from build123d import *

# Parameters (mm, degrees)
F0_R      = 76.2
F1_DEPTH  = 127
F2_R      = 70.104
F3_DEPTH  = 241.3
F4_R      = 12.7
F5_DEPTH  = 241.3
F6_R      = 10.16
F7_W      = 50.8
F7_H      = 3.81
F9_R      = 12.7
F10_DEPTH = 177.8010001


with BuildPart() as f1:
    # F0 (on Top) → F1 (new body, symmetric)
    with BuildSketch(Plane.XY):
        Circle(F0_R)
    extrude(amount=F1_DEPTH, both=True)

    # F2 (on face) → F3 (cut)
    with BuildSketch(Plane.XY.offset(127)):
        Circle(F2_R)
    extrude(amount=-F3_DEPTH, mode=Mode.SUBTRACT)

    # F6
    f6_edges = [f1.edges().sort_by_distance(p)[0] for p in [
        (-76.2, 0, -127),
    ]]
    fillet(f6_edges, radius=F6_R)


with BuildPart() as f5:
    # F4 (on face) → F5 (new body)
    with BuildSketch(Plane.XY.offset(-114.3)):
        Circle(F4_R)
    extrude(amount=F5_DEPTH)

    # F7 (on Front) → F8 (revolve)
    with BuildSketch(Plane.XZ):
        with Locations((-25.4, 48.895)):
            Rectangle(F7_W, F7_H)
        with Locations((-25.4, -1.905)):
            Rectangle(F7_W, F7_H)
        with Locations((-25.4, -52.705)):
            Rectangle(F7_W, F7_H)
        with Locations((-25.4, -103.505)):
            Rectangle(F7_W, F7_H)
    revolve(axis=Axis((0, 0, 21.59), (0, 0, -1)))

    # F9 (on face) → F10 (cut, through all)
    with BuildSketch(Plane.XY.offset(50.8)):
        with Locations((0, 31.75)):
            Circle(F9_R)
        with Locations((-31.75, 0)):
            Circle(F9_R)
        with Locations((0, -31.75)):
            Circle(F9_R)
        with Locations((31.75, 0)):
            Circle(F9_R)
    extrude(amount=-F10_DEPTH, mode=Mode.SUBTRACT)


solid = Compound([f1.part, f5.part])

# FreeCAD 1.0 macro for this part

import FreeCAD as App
import Part
import Sketcher

V = App.Vector
Q = App.Units.Quantity


def edges_at(feature, points):
    """Names of the edges that pass closest to the given points."""
    edges = feature.Shape.Edges
    near = lambda p: min(range(len(edges)), key=lambda i: edges[i].distToShape(Part.Vertex(*p))[0])
    return sorted({f"Edge{near(p) + 1}" for p in points})


def add_polygon(sketch, points):
    """Adds a closed chain of lines whose ends are joined by coincident constraints."""
    first, n = sketch.GeometryCount, len(points)
    for a, b in zip(points, points[1:] + points[:1]):
        sketch.addGeometry(Part.LineSegment(App.Vector(*a, 0), App.Vector(*b, 0)), False)
    for i in range(n):
        sketch.addConstraint(Sketcher.Constraint("Coincident", first + i, 2, first + (i + 1) % n, 1))

doc = App.newDocument("Part")
body = doc.addObject("PartDesign::Body", "Body")

# Sketch on XY plane
sketch1 = doc.addObject("Sketcher::SketchObject", "Sketch")
body.addObject(sketch1)
sketch1.AttachmentSupport = (doc.XY_Plane, [""])
sketch1.MapMode = "FlatFace"
sketch1.addGeometry(Part.Circle(V(0, 0, 0), V(0, 0, 1), 76), False)
sketch1.addConstraint([
    Sketcher.Constraint("Coincident", 0, 3, -1, 1),
    Sketcher.Constraint("Diameter", 0, Q("6 in")),
])
pad1 = doc.addObject("PartDesign::Pad", "Pad")
body.addObject(pad1)
pad1.Profile = sketch1
pad1.Length = Q("10 in")
pad1.Midplane = True

# Sketch on XY plane
sketch2 = doc.addObject("Sketcher::SketchObject", "Sketch001")
body.addObject(sketch2)
sketch2.AttachmentSupport = (doc.XY_Plane, [""])
sketch2.MapMode = "FlatFace"
sketch2.AttachmentOffset = App.Placement(V(0, 0, 5 * 25.4), App.Rotation())
sketch2.addGeometry(Part.Circle(V(0, 0, 0), V(0, 0, 1), 70), False)
sketch2.addConstraint([
    Sketcher.Constraint("Coincident", 0, 3, -1, 1),
    Sketcher.Constraint("Diameter", 0, Q("5.52 in")),
])
pocket1 = doc.addObject("PartDesign::Pocket", "Pocket")
body.addObject(pocket1)
pocket1.Profile = sketch2
pocket1.Length = Q("9.5 in")
doc.recompute()

fillet = doc.addObject("PartDesign::Fillet", "Fillet")
body.addObject(fillet)
fillet.Base = (pocket1, edges_at(pocket1, [(-76.2, 0, -127)]))
fillet.Radius = Q("0.4 in")
body2 = doc.addObject("PartDesign::Body", "Body001")

# Sketch on XY plane
sketch3 = doc.addObject("Sketcher::SketchObject", "Sketch002")
body2.addObject(sketch3)
sketch3.AttachmentSupport = (doc.getObject("XY_Plane001"), [""])
sketch3.MapMode = "FlatFace"
sketch3.AttachmentOffset = App.Placement(V(0, 0, -4.5 * 25.4), App.Rotation())
sketch3.addGeometry(Part.Circle(V(0, 0, 0), V(0, 0, 1), 13), False)
sketch3.addConstraint([
    Sketcher.Constraint("Coincident", 0, 3, -1, 1),
    Sketcher.Constraint("Diameter", 0, Q("1 in")),
])
pad2 = doc.addObject("PartDesign::Pad", "Pad001")
body2.addObject(pad2)
pad2.Profile = sketch3
pad2.Length = Q("9.5 in")

# Sketch on XZ plane
sketch4 = doc.addObject("Sketcher::SketchObject", "Sketch003")
body2.addObject(sketch4)
sketch4.AttachmentSupport = (doc.getObject("XZ_Plane001"), [""])
sketch4.MapMode = "FlatFace"
add_polygon(sketch4, [(-50.8, 50.8), (-50.8, 47), (0, 47), (0, 50.8)])  # lines 0-3
add_polygon(sketch4, [(-50.8, 0), (-50.8, -3.8), (0, -3.8), (0, 0)])  # lines 4-7
add_polygon(sketch4, [(-50.8, -50.8), (-50.8, -54.6), (0, -54.6), (0, -50.8)])  # lines 8-11
add_polygon(sketch4, [(-50.8, -101.6), (-50.8, -105.4), (0, -105.4), (0, -101.6)])  # lines 12-15
sketch4.addConstraint([
    Sketcher.Constraint("Vertical", 0),
    Sketcher.Constraint("Horizontal", 1),
    Sketcher.Constraint("Vertical", 2),
    Sketcher.Constraint("Horizontal", 3),
    Sketcher.Constraint("Vertical", 4),
    Sketcher.Constraint("Horizontal", 5),
    Sketcher.Constraint("Vertical", 6),
    Sketcher.Constraint("Horizontal", 7),
    Sketcher.Constraint("Vertical", 8),
    Sketcher.Constraint("Horizontal", 9),
    Sketcher.Constraint("Vertical", 10),
    Sketcher.Constraint("Horizontal", 11),
    Sketcher.Constraint("Vertical", 12),
    Sketcher.Constraint("Horizontal", 13),
    Sketcher.Constraint("Vertical", 14),
    Sketcher.Constraint("Horizontal", 15),
    Sketcher.Constraint("Coincident", 6, 2, -1, 1),
    Sketcher.Constraint("Symmetric", 2, 2, 10, 2, -1, 1),
    Sketcher.Constraint("PointOnObject", 1, 2, -2),
    Sketcher.Constraint("PointOnObject", 13, 2, -2),
    Sketcher.Constraint("Vertical", 3, 2, 4, 2),
    Sketcher.Constraint("Vertical", 7, 2, 8, 2),
    Sketcher.Constraint("Vertical", 11, 2, 12, 2),
    Sketcher.Constraint("Equal", 2, 4),
    Sketcher.Constraint("Equal", 6, 8),
    Sketcher.Constraint("Equal", 10, 12),
    Sketcher.Constraint("DistanceX", 1, 1, 1, 2, Q("2 in")),
    Sketcher.Constraint("DistanceY", -1, 1, 2, 2, Q("2 in")),
    Sketcher.Constraint("DistanceY", 14, 2, -1, 1, Q("4 in")),
    Sketcher.Constraint("DistanceY", 0, 2, 0, 1, Q("0.15 in")),
])
revolution = doc.addObject("PartDesign::Revolution", "Revolution")
body2.addObject(revolution)
revolution.Profile = sketch4
revolution.ReferenceAxis = (sketch4, ["V_Axis"])
revolution.Angle = 360

# Sketch on XY plane
sketch5 = doc.addObject("Sketcher::SketchObject", "Sketch004")
body2.addObject(sketch5)
sketch5.AttachmentSupport = (doc.getObject("XY_Plane001"), [""])
sketch5.MapMode = "FlatFace"
sketch5.AttachmentOffset = App.Placement(V(0, 0, 2 * 25.4), App.Rotation())
sketch5.addGeometry([
    Part.Circle(V(0, 32, 0), V(0, 0, 1), 13),
    Part.Circle(V(-32, 0, 0), V(0, 0, 1), 13),
    Part.Circle(V(0, -32, 0), V(0, 0, 1), 13),
    Part.Circle(V(32, 0, 0), V(0, 0, 1), 13),
], False)
sketch5.addConstraint([
    Sketcher.Constraint("Equal", 0, 1),
    Sketcher.Constraint("Equal", 1, 2),
    Sketcher.Constraint("Equal", 2, 3),
    Sketcher.Constraint("Symmetric", 0, 3, 2, 3, -1, 1),
    Sketcher.Constraint("Symmetric", 1, 3, 3, 3, -1, 1),
    Sketcher.Constraint("PointOnObject", 0, 3, -2),
    Sketcher.Constraint("PointOnObject", 1, 3, -1),
    Sketcher.Constraint("Diameter", 0, Q("1 in")),
    Sketcher.Constraint("DistanceY", 2, 3, 0, 3, Q("2.5 in")),
    Sketcher.Constraint("DistanceX", 1, 3, 3, 3, Q("2.5 in")),
])
pocket2 = doc.addObject("PartDesign::Pocket", "Pocket001")
body2.addObject(pocket2)
pocket2.Profile = sketch5
pocket2.Type = "ThroughAll"

doc.recompute()
